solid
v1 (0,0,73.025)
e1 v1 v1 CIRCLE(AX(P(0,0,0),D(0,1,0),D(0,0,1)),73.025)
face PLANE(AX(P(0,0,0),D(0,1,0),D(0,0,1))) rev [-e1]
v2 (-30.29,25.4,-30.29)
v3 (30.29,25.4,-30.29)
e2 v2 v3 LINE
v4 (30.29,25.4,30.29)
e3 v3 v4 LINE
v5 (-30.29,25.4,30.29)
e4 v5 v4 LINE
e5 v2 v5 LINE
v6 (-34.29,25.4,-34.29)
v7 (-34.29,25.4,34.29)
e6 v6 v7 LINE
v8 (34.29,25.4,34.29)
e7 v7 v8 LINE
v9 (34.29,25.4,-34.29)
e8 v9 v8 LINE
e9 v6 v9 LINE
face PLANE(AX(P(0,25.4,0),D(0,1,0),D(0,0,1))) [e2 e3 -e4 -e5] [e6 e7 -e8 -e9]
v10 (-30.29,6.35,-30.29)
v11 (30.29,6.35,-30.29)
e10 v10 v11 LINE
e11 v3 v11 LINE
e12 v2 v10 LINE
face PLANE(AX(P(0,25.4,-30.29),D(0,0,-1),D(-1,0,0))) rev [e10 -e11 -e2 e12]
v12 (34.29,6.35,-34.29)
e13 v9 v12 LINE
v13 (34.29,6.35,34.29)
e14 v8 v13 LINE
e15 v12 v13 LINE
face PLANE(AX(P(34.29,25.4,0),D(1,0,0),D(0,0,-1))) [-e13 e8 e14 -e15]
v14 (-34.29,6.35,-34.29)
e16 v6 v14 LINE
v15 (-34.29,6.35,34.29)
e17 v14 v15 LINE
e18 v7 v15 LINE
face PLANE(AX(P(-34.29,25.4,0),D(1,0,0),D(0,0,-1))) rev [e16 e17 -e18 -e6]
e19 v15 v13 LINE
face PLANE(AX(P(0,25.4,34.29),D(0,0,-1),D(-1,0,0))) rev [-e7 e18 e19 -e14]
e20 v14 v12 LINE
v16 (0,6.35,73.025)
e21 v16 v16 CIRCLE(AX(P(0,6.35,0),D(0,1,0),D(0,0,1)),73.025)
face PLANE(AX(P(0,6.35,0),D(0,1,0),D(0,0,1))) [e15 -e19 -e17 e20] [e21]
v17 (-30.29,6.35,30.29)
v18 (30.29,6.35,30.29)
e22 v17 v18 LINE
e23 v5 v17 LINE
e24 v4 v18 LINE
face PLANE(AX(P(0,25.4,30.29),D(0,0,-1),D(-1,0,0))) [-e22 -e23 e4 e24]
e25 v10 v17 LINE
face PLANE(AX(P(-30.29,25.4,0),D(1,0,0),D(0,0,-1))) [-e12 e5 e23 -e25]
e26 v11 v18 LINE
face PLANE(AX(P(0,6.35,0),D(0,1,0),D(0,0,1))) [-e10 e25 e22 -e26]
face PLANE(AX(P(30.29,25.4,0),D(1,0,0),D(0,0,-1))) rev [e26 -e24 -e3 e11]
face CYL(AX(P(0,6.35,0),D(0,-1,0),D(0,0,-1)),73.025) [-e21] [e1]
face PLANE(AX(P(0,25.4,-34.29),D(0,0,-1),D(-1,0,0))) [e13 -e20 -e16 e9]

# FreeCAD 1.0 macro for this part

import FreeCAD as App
import Part
import Sketcher
Q = App.Units.Quantity


def add_polygon(sketch, points):
    """Adds a closed chain of lines whose ends are joined by coincident constraints."""
    first, n = sketch.GeometryCount, len(points)
    for a, b in zip(points, points[1:] + points[:1]):
        sketch.addGeometry(Part.LineSegment(App.Vector(*a, 0), App.Vector(*b, 0)), False)
    for i in range(n):
        sketch.addConstraint(Sketcher.Constraint("Coincident", first + i, 2, first + (i + 1) % n, 1))

doc = App.newDocument("Part")
body = doc.addObject("PartDesign::Body", "Body")

# Sketch on XZ plane
sketch1 = doc.addObject("Sketcher::SketchObject", "Sketch")
body.addObject(sketch1)
sketch1.AttachmentSupport = (doc.XZ_Plane, [""])
sketch1.MapMode = "FlatFace"
add_polygon(sketch1, [(-34, -34), (-34, 34), (34, 34), (34, -34)])  # lines 0-3
add_polygon(sketch1, [(30, 30), (-30, 30), (-30, -30), (30, -30)])  # lines 4-7
sketch1.addConstraint(Sketcher.Constraint("Vertical", 0))
sketch1.addConstraint(Sketcher.Constraint("Horizontal", 1))
sketch1.addConstraint(Sketcher.Constraint("Vertical", 2))
sketch1.addConstraint(Sketcher.Constraint("Horizontal", 3))
sketch1.addConstraint(Sketcher.Constraint("Horizontal", 4))
sketch1.addConstraint(Sketcher.Constraint("Vertical", 5))
sketch1.addConstraint(Sketcher.Constraint("Horizontal", 6))
sketch1.addConstraint(Sketcher.Constraint("Vertical", 7))
sketch1.addConstraint(Sketcher.Constraint("Symmetric", 0, 2, 2, 2, -1, 1))
sketch1.addConstraint(Sketcher.Constraint("Symmetric", 4, 2, 6, 2, -1, 1))
sketch1.addConstraint(Sketcher.Constraint("Equal", 3, 0))
sketch1.addConstraint(Sketcher.Constraint("Equal", 6, 5))
sketch1.addConstraint(Sketcher.Constraint("DistanceX", 1, 1, 1, 2, Q("2.7 in")))
sketch1.addConstraint(Sketcher.Constraint("DistanceX", 4, 2, 4, 1, Q("60.58 mm")))
pad1 = doc.addObject("PartDesign::Pad", "Pad")
body.addObject(pad1)
pad1.Profile = sketch1
pad1.Length = Q("1 in")
pad1.Reversed = True

# Sketch on XZ plane
sketch2 = doc.addObject("Sketcher::SketchObject", "Sketch001")
body.addObject(sketch2)
sketch2.AttachmentSupport = (doc.XZ_Plane, [""])
sketch2.MapMode = "FlatFace"
sketch2.addGeometry(Part.Circle(App.Vector(0, 0, 0), App.Vector(0, 0, 1), 73), False)
sketch2.addConstraint(Sketcher.Constraint("Coincident", 0, 3, -1, 1))
sketch2.addConstraint(Sketcher.Constraint("Diameter", 0, Q("5.75 in")))
pad2 = doc.addObject("PartDesign::Pad", "Pad001")
body.addObject(pad2)
pad2.Profile = sketch2
pad2.Length = Q("0.25 in")
pad2.Reversed = True

doc.recompute()
